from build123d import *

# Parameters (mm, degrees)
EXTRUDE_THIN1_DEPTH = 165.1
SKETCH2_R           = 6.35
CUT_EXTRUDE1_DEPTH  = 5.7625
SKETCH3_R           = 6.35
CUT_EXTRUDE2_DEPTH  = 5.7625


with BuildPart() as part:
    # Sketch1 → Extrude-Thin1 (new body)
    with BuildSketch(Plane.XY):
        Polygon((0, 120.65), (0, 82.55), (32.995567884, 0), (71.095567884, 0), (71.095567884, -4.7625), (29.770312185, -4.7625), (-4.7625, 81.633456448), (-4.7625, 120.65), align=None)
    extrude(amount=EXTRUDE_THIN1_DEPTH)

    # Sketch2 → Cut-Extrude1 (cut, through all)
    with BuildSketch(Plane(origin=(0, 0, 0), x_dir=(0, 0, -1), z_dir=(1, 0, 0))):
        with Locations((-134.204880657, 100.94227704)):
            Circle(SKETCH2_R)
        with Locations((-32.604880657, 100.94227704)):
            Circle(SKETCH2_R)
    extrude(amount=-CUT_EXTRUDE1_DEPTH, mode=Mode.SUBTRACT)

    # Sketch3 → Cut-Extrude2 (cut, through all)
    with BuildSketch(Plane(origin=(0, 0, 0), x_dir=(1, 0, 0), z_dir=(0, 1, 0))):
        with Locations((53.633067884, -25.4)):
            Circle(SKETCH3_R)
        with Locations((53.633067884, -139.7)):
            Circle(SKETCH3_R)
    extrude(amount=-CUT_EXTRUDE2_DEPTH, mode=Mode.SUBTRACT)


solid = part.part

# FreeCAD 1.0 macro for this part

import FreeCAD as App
import Part
import Sketcher
Q = App.Units.Quantity

doc = App.newDocument("Part")
body = doc.addObject("PartDesign::Body", "Body")

sketch1 = doc.addObject("Sketcher::SketchObject", "Sketch")
body.addObject(sketch1)
sketch1.AttachmentSupport = (doc.XY_Plane, [""])
sketch1.MapMode = "FlatFace"
sketch1.addGeometry(Part.LineSegment(App.Vector(0, 82.55, 0), App.Vector(0, 120.65, 0)), False)
sketch1.addGeometry(Part.LineSegment(App.Vector(0, 120.65, 0), App.Vector(-4.7625, 120.65, 0)), False)
sketch1.addGeometry(Part.LineSegment(App.Vector(-4.7625, 120.65, 0), App.Vector(-4.7625, 81.633456, 0)), False)
sketch1.addGeometry(Part.LineSegment(App.Vector(-4.7625, 81.633456, 0), App.Vector(29.770312, -4.7625, 0)), False)
sketch1.addGeometry(Part.LineSegment(App.Vector(29.770312, -4.7625, 0), App.Vector(71.095568, -4.7625, 0)), False)
sketch1.addGeometry(Part.LineSegment(App.Vector(71.095568, -4.7625, 0), App.Vector(71.095568, 0, 0)), False)
sketch1.addGeometry(Part.LineSegment(App.Vector(71.095568, 0, 0), App.Vector(32.995568, 0, 0)), False)
sketch1.addGeometry(Part.LineSegment(App.Vector(32.995568, 0, 0), App.Vector(0, 82.55, 0)), False)
sketch1.addConstraint(Sketcher.Constraint("Coincident", 0, 2, 1, 1))
sketch1.addConstraint(Sketcher.Constraint("Coincident", 1, 2, 2, 1))
sketch1.addConstraint(Sketcher.Constraint("Coincident", 2, 2, 3, 1))
sketch1.addConstraint(Sketcher.Constraint("Coincident", 3, 2, 4, 1))
sketch1.addConstraint(Sketcher.Constraint("Coincident", 4, 2, 5, 1))
sketch1.addConstraint(Sketcher.Constraint("Coincident", 5, 2, 6, 1))
sketch1.addConstraint(Sketcher.Constraint("Coincident", 6, 2, 7, 1))
sketch1.addConstraint(Sketcher.Constraint("Coincident", 7, 2, 0, 1))
sketch1.addConstraint(Sketcher.Constraint("Vertical", 0))
sketch1.addConstraint(Sketcher.Constraint("Horizontal", 1))
sketch1.addConstraint(Sketcher.Constraint("Vertical", 2))
sketch1.addConstraint(Sketcher.Constraint("Horizontal", 4))
sketch1.addConstraint(Sketcher.Constraint("Vertical", 5))
sketch1.addConstraint(Sketcher.Constraint("Horizontal", 6))
sketch1.addConstraint(Sketcher.Constraint("PointOnObject", 0, 2, -2))
sketch1.addConstraint(Sketcher.Constraint("PointOnObject", 5, 2, -1))
sketch1.addConstraint(Sketcher.Constraint("Parallel", 3, 7))
sketch1.addConstraint(Sketcher.Constraint("Equal", 6, 0))
sketch1.addConstraint(Sketcher.Constraint("Equal", 1, 5))
sketch1.addConstraint(Sketcher.Constraint("DistanceX", 6, 2, 6, 1, Q("1.5 in")))
sketch1.addConstraint(Sketcher.Constraint("Distance", 7, Q("3.5 in")))
sketch1.addConstraint(Sketcher.Constraint("DistanceX", 1, 2, 1, 1, Q("0.1875 in")))
sketch1.addConstraint(Sketcher.Constraint("DistanceY", -1, 1, 0, 2, Q("4.75 in")))
sketch1.addConstraint(Sketcher.Constraint("Distance", 3, 93.041799))
pad1 = doc.addObject("PartDesign::Pad", "Pad")
body.addObject(pad1)
pad1.Profile = sketch1
pad1.Length = Q("6.5 in")

sketch2 = doc.addObject("Sketcher::SketchObject", "Sketch001")
body.addObject(sketch2)
sketch2.AttachmentSupport = (doc.YZ_Plane, [""])
sketch2.MapMode = "FlatFace"
sketch2.addGeometry(Part.Circle(App.Vector(100.942277, 134.204881, 0), App.Vector(0, 0, 1), 6.35), False)
sketch2.addGeometry(Part.Circle(App.Vector(100.942277, 32.604881, 0), App.Vector(0, 0, 1), 6.35), False)
sketch2.addConstraint(Sketcher.Constraint("Equal", 0, 1))
sketch2.addConstraint(Sketcher.Constraint("Vertical", 0, 3, 1, 3))
sketch2.addConstraint(Sketcher.Constraint("Diameter", 0, Q("0.5 in")))
sketch2.addConstraint(Sketcher.Constraint("DistanceY", 1, 3, 0, 3, Q("4 in")))
sketch2.addConstraint(Sketcher.Constraint("DistanceY", -1, 1, 0, 3, 134.204881))
sketch2.addConstraint(Sketcher.Constraint("DistanceX", -1, 1, 0, 3, 100.942277))
pocket1 = doc.addObject("PartDesign::Pocket", "Pocket")
body.addObject(pocket1)
pocket1.Profile = sketch2
pocket1.Type = "ThroughAll"

sketch3 = doc.addObject("Sketcher::SketchObject", "Sketch002")
body.addObject(sketch3)
sketch3.AttachmentSupport = (doc.XZ_Plane, [""])
sketch3.MapMode = "FlatFace"
sketch3.addGeometry(Part.Circle(App.Vector(53.633068, 25.4, 0), App.Vector(0, 0, 1), 6.35), False)
sketch3.addGeometry(Part.Circle(App.Vector(53.633068, 139.7, 0), App.Vector(0, 0, 1), 6.35), False)
sketch3.addConstraint(Sketcher.Constraint("Equal", 0, 1))
sketch3.addConstraint(Sketcher.Constraint("Vertical", 0, 3, 1, 3))
sketch3.addConstraint(Sketcher.Constraint("Diameter", 0, Q("0.5 in")))
sketch3.addConstraint(Sketcher.Constraint("DistanceY", -1, 1, 0, 3, Q("1 in")))
sketch3.addConstraint(Sketcher.Constraint("DistanceY", -1, 1, 1, 3, Q("5.5 in")))
sketch3.addConstraint(Sketcher.Constraint("DistanceX", -1, 1, 0, 3, 53.633068))
pocket2 = doc.addObject("PartDesign::Pocket", "Pocket001")
body.addObject(pocket2)
pocket2.Profile = sketch3
pocket2.Type = "ThroughAll"
pocket2.Reversed = True

doc.recompute()
